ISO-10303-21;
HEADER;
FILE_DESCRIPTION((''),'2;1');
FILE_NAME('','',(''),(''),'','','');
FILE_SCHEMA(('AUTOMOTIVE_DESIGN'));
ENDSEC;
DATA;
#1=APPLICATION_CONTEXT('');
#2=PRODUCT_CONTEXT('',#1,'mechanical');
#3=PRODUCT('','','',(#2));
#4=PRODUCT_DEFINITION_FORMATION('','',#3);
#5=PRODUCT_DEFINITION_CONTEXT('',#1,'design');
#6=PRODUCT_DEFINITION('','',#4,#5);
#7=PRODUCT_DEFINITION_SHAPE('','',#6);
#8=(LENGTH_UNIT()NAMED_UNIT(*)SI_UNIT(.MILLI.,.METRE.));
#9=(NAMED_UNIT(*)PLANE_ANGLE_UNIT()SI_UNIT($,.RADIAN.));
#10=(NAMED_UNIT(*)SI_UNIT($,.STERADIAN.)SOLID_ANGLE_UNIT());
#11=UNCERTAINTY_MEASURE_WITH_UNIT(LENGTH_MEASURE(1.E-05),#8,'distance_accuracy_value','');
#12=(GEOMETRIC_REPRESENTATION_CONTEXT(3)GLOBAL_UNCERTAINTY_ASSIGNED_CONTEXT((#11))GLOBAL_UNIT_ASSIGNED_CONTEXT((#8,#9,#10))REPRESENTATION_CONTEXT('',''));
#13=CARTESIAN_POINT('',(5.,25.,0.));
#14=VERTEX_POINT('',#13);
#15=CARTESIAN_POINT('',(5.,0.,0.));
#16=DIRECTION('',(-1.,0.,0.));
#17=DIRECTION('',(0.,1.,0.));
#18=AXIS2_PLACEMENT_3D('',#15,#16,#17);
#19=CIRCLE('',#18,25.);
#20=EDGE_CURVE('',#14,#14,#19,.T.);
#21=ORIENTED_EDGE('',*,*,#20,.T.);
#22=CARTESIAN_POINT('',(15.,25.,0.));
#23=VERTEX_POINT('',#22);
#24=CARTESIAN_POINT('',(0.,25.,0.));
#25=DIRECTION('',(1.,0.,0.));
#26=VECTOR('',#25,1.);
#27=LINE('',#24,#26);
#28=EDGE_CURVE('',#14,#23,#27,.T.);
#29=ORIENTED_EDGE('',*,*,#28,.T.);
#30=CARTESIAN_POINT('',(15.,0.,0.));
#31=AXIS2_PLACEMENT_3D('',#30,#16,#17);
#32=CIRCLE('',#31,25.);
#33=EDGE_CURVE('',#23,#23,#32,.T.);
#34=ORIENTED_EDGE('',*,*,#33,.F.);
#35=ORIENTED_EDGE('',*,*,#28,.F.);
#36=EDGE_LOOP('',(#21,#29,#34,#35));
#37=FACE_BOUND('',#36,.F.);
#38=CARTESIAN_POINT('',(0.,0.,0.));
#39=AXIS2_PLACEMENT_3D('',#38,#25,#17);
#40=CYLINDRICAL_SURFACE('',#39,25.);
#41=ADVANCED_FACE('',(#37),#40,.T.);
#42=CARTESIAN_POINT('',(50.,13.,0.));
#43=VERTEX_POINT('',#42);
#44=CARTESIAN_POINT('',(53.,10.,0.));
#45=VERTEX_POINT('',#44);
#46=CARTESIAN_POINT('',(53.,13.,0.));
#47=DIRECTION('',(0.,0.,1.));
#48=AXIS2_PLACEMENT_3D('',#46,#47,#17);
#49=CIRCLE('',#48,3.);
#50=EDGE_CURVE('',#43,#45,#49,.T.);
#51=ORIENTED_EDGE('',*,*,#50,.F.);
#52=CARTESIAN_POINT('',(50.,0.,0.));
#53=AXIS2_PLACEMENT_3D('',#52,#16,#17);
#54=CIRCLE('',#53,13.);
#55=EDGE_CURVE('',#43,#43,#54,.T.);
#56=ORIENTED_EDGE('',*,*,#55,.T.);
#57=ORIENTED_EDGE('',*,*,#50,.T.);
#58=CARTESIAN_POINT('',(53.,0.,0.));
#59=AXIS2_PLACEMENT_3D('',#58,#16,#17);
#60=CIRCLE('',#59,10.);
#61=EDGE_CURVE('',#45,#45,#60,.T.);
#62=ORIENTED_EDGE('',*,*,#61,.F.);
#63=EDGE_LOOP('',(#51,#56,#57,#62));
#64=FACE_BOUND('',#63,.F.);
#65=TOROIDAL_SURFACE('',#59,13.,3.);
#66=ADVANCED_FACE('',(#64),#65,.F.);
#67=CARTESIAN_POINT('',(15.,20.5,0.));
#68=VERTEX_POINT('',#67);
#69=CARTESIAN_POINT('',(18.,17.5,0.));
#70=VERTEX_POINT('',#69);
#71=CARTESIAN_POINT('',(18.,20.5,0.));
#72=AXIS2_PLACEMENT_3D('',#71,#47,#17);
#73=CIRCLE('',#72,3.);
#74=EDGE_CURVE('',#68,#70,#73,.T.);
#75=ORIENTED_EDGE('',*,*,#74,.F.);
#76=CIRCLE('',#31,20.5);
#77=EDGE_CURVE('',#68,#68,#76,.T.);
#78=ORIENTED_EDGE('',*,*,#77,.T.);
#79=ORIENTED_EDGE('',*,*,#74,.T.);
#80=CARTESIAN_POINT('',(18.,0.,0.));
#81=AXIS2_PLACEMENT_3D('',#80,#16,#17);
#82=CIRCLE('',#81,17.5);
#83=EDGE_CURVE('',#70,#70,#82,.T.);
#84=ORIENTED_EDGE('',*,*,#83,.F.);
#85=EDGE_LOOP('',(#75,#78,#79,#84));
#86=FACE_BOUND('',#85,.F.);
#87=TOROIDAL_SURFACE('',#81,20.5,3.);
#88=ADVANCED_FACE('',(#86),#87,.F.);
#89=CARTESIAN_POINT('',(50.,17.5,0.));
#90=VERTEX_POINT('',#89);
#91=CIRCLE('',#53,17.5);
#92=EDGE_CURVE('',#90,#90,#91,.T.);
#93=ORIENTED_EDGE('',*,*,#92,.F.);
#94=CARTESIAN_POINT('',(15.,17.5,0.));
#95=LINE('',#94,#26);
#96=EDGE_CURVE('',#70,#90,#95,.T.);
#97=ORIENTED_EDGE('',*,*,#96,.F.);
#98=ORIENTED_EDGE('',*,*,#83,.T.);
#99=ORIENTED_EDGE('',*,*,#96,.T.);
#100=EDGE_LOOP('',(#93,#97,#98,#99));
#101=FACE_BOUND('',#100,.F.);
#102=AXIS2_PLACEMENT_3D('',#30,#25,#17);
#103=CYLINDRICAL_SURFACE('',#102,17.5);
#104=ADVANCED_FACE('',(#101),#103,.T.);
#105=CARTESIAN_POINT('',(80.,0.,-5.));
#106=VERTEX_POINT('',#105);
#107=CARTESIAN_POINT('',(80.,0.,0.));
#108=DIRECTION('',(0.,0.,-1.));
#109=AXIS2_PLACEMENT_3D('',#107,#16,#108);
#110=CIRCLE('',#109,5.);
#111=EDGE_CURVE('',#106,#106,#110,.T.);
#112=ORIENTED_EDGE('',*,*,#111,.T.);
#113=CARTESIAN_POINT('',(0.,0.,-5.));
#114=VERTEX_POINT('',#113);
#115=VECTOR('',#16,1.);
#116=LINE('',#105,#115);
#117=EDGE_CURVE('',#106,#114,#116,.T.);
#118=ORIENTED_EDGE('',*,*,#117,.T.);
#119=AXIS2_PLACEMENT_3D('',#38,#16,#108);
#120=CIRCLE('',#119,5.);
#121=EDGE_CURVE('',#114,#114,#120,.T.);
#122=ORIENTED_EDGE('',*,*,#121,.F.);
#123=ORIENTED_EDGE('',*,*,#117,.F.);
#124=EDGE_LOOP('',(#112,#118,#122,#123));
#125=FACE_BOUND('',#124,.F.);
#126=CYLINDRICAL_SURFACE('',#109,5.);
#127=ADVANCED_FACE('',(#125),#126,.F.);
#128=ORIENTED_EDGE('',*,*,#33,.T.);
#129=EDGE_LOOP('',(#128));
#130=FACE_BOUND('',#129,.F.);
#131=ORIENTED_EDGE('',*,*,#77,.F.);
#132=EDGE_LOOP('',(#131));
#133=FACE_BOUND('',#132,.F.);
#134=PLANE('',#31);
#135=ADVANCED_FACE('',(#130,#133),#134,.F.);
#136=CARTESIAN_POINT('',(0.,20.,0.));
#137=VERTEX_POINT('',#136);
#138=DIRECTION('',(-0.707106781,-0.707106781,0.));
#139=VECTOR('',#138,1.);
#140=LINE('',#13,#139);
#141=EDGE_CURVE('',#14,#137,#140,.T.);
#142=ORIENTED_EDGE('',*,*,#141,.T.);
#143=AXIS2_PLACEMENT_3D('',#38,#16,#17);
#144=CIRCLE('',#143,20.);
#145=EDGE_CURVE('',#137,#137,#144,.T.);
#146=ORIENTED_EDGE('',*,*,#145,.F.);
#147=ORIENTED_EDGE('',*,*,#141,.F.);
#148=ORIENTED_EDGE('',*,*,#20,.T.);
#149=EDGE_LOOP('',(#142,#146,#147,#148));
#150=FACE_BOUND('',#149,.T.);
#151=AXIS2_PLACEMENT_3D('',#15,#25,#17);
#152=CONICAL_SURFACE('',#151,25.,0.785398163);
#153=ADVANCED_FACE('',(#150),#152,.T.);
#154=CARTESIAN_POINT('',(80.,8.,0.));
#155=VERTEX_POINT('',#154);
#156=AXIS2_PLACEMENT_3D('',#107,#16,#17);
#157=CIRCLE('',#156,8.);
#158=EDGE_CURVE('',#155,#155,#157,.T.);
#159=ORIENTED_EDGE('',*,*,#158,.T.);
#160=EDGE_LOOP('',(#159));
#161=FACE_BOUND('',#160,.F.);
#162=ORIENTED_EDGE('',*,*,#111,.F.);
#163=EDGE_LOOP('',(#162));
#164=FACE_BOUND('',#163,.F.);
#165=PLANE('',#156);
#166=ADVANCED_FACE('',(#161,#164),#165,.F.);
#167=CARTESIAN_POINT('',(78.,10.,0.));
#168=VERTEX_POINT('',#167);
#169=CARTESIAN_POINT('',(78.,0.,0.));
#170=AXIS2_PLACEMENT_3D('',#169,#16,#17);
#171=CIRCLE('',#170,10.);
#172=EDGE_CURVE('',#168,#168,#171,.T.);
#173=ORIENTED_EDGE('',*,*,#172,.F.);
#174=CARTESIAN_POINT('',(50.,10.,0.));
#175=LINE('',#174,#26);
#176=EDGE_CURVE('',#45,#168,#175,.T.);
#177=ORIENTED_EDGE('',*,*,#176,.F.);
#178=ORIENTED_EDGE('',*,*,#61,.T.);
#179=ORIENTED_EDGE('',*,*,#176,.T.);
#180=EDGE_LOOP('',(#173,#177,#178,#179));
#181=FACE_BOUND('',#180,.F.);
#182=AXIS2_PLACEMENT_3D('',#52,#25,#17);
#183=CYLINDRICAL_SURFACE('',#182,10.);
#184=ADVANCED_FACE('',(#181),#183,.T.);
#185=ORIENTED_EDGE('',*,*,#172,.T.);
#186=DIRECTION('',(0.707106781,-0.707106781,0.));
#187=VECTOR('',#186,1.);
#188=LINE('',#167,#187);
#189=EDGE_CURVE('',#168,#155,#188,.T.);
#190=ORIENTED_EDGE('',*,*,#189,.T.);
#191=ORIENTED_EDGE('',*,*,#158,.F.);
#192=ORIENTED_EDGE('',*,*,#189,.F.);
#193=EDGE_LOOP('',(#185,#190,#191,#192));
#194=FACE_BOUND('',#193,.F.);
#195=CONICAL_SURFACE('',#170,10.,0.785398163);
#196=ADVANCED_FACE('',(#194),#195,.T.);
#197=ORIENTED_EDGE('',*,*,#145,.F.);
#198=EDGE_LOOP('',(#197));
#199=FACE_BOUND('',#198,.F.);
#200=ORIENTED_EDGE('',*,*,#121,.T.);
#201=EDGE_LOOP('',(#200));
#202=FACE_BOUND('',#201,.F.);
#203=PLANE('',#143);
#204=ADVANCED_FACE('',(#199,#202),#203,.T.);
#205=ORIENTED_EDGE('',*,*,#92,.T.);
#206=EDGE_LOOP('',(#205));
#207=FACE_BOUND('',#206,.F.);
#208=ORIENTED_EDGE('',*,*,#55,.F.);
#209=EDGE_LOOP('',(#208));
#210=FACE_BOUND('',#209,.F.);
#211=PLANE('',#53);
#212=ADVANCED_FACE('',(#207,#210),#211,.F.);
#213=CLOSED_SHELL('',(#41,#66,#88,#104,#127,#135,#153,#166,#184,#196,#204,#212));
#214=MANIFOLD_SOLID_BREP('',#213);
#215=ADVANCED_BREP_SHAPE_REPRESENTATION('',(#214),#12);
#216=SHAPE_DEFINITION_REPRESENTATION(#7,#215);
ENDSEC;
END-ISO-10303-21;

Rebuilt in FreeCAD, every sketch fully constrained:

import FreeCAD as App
import Part
import Sketcher


def edges_at(feature, points):
    """Names of the edges that pass closest to the given points."""
    edges = feature.Shape.Edges
    near = lambda p: min(range(len(edges)), key=lambda i: edges[i].distToShape(Part.Vertex(*p))[0])
    return sorted({f"Edge{near(p) + 1}" for p in points})


def add_polygon(sketch, points):
    """Adds a closed chain of lines whose ends are joined by coincident constraints."""
    first, n = sketch.GeometryCount, len(points)
    for a, b in zip(points, points[1:] + points[:1]):
        sketch.addGeometry(Part.LineSegment(App.Vector(*a, 0), App.Vector(*b, 0)), False)
    for i in range(n):
        sketch.addConstraint(Sketcher.Constraint("Coincident", first + i, 2, first + (i + 1) % n, 1))

doc = App.newDocument("Part")
params = doc.addObject("Spreadsheet::Sheet", "Params")
for row, (alias, value) in enumerate([
    ("sketch1_width", "30 mm"),
    ("sketch1_width2", "35 mm"),
    ("sketch1_width3", "15 mm"),
    ("sketch1_height", "25 mm"),
    ("revolution_angle", "360 deg"),
    ("fillet_radius", "3 mm"),
    ("chamfer_size", "2 mm"),
    ("chamfer2_size", "5 mm"),
    ("sketch2_diameter", "10 mm"),
    ("hole_diameter", "10 mm"),
], start=1):
    params.set(f"A{row}", alias)
    params.set(f"B{row}", "=" + value)
    params.setAlias(f"B{row}", alias)

body = doc.addObject("PartDesign::Body", "Body")

# Sketch on XY plane
sketch1 = body.newObject("Sketcher::SketchObject", "Sketch")
sketch1.AttachmentSupport = (doc.getObject("XY_Plane"), [""])
sketch1.MapMode = "FlatFace"
add_polygon(sketch1, [(0, 25), (0, 0), (80, 0), (80, 10), (50, 10), (50, 18), (15, 18), (15, 25)])  # lines 0-7
sketch1.addConstraint([
    Sketcher.Constraint("Vertical", 0),
    Sketcher.Constraint("Horizontal", 1),
    Sketcher.Constraint("Vertical", 2),
    Sketcher.Constraint("Horizontal", 3),
    Sketcher.Constraint("Vertical", 4),
    Sketcher.Constraint("Horizontal", 5),
    Sketcher.Constraint("Vertical", 6),
    Sketcher.Constraint("Horizontal", 7),
    Sketcher.Constraint("Coincident", 0, 2, -1, 1),
    Sketcher.Constraint("Equal", 4, 6),
    Sketcher.Constraint("DistanceX", 3, 2, 3, 1, 30.0),
    Sketcher.Constraint("DistanceX", 5, 2, 5, 1, 35.0),
    Sketcher.Constraint("DistanceX", 7, 2, 7, 1, 15.0),
    Sketcher.Constraint("DistanceY", 3, 2, 6, 2, 15.0),
    Sketcher.Constraint("DistanceY", 0, 2, 0, 1, 25.0),
])
sketch1.setExpression("Constraints[18]", "Params.sketch1_width")
sketch1.setExpression("Constraints[19]", "Params.sketch1_width2")
sketch1.setExpression("Constraints[20]", "Params.sketch1_width3")
sketch1.setExpression("Constraints[22]", "Params.sketch1_height")
revolution = body.newObject("PartDesign::Revolution", "Revolution")
revolution.Profile = sketch1
revolution.ReferenceAxis = (sketch1, ["H_Axis"])
revolution.setExpression("Angle", "Params.revolution_angle")
doc.recompute()

fillet = body.newObject("PartDesign::Fillet", "Fillet")
fillet.Base = (revolution, edges_at(revolution, [(15, -17.5, 0), (50, -10, 0)]))
fillet.setExpression("Radius", "Params.fillet_radius")
doc.recompute()

chamfer = body.newObject("PartDesign::Chamfer", "Chamfer")
chamfer.Base = (fillet, edges_at(fillet, [(80, -10, 0)]))
chamfer.setExpression("Size", "Params.chamfer_size")
doc.recompute()

chamfer2 = body.newObject("PartDesign::Chamfer", "Chamfer001")
chamfer2.Base = (chamfer, edges_at(chamfer, [(0, -25, 0)]))
chamfer2.setExpression("Size", "Params.chamfer2_size")

# Sketch on YZ plane
sketch2 = body.newObject("Sketcher::SketchObject", "Sketch001")
sketch2.AttachmentSupport = (doc.getObject("YZ_Plane"), [""])
sketch2.MapMode = "FlatFace"
sketch2.AttachmentOffset = App.Placement(App.Vector(0, 0, 80), App.Rotation())
sketch2.addGeometry(Part.Circle(App.Vector(0, 0, 0), App.Vector(0, 0, 1), 5), False)
sketch2.addConstraint([
    Sketcher.Constraint("Coincident", 0, 3, -1, 1),
    Sketcher.Constraint("Diameter", 0, 10.0),
])
sketch2.setExpression("Constraints[1]", "Params.sketch2_diameter")
doc.recompute()
hole = body.newObject("PartDesign::Hole", "Hole")
hole.Profile = sketch2
hole.ThreadType = "None"
hole.setExpression("Diameter", "Params.hole_diameter")
hole.DepthType = "ThroughAll"

doc.recompute()
